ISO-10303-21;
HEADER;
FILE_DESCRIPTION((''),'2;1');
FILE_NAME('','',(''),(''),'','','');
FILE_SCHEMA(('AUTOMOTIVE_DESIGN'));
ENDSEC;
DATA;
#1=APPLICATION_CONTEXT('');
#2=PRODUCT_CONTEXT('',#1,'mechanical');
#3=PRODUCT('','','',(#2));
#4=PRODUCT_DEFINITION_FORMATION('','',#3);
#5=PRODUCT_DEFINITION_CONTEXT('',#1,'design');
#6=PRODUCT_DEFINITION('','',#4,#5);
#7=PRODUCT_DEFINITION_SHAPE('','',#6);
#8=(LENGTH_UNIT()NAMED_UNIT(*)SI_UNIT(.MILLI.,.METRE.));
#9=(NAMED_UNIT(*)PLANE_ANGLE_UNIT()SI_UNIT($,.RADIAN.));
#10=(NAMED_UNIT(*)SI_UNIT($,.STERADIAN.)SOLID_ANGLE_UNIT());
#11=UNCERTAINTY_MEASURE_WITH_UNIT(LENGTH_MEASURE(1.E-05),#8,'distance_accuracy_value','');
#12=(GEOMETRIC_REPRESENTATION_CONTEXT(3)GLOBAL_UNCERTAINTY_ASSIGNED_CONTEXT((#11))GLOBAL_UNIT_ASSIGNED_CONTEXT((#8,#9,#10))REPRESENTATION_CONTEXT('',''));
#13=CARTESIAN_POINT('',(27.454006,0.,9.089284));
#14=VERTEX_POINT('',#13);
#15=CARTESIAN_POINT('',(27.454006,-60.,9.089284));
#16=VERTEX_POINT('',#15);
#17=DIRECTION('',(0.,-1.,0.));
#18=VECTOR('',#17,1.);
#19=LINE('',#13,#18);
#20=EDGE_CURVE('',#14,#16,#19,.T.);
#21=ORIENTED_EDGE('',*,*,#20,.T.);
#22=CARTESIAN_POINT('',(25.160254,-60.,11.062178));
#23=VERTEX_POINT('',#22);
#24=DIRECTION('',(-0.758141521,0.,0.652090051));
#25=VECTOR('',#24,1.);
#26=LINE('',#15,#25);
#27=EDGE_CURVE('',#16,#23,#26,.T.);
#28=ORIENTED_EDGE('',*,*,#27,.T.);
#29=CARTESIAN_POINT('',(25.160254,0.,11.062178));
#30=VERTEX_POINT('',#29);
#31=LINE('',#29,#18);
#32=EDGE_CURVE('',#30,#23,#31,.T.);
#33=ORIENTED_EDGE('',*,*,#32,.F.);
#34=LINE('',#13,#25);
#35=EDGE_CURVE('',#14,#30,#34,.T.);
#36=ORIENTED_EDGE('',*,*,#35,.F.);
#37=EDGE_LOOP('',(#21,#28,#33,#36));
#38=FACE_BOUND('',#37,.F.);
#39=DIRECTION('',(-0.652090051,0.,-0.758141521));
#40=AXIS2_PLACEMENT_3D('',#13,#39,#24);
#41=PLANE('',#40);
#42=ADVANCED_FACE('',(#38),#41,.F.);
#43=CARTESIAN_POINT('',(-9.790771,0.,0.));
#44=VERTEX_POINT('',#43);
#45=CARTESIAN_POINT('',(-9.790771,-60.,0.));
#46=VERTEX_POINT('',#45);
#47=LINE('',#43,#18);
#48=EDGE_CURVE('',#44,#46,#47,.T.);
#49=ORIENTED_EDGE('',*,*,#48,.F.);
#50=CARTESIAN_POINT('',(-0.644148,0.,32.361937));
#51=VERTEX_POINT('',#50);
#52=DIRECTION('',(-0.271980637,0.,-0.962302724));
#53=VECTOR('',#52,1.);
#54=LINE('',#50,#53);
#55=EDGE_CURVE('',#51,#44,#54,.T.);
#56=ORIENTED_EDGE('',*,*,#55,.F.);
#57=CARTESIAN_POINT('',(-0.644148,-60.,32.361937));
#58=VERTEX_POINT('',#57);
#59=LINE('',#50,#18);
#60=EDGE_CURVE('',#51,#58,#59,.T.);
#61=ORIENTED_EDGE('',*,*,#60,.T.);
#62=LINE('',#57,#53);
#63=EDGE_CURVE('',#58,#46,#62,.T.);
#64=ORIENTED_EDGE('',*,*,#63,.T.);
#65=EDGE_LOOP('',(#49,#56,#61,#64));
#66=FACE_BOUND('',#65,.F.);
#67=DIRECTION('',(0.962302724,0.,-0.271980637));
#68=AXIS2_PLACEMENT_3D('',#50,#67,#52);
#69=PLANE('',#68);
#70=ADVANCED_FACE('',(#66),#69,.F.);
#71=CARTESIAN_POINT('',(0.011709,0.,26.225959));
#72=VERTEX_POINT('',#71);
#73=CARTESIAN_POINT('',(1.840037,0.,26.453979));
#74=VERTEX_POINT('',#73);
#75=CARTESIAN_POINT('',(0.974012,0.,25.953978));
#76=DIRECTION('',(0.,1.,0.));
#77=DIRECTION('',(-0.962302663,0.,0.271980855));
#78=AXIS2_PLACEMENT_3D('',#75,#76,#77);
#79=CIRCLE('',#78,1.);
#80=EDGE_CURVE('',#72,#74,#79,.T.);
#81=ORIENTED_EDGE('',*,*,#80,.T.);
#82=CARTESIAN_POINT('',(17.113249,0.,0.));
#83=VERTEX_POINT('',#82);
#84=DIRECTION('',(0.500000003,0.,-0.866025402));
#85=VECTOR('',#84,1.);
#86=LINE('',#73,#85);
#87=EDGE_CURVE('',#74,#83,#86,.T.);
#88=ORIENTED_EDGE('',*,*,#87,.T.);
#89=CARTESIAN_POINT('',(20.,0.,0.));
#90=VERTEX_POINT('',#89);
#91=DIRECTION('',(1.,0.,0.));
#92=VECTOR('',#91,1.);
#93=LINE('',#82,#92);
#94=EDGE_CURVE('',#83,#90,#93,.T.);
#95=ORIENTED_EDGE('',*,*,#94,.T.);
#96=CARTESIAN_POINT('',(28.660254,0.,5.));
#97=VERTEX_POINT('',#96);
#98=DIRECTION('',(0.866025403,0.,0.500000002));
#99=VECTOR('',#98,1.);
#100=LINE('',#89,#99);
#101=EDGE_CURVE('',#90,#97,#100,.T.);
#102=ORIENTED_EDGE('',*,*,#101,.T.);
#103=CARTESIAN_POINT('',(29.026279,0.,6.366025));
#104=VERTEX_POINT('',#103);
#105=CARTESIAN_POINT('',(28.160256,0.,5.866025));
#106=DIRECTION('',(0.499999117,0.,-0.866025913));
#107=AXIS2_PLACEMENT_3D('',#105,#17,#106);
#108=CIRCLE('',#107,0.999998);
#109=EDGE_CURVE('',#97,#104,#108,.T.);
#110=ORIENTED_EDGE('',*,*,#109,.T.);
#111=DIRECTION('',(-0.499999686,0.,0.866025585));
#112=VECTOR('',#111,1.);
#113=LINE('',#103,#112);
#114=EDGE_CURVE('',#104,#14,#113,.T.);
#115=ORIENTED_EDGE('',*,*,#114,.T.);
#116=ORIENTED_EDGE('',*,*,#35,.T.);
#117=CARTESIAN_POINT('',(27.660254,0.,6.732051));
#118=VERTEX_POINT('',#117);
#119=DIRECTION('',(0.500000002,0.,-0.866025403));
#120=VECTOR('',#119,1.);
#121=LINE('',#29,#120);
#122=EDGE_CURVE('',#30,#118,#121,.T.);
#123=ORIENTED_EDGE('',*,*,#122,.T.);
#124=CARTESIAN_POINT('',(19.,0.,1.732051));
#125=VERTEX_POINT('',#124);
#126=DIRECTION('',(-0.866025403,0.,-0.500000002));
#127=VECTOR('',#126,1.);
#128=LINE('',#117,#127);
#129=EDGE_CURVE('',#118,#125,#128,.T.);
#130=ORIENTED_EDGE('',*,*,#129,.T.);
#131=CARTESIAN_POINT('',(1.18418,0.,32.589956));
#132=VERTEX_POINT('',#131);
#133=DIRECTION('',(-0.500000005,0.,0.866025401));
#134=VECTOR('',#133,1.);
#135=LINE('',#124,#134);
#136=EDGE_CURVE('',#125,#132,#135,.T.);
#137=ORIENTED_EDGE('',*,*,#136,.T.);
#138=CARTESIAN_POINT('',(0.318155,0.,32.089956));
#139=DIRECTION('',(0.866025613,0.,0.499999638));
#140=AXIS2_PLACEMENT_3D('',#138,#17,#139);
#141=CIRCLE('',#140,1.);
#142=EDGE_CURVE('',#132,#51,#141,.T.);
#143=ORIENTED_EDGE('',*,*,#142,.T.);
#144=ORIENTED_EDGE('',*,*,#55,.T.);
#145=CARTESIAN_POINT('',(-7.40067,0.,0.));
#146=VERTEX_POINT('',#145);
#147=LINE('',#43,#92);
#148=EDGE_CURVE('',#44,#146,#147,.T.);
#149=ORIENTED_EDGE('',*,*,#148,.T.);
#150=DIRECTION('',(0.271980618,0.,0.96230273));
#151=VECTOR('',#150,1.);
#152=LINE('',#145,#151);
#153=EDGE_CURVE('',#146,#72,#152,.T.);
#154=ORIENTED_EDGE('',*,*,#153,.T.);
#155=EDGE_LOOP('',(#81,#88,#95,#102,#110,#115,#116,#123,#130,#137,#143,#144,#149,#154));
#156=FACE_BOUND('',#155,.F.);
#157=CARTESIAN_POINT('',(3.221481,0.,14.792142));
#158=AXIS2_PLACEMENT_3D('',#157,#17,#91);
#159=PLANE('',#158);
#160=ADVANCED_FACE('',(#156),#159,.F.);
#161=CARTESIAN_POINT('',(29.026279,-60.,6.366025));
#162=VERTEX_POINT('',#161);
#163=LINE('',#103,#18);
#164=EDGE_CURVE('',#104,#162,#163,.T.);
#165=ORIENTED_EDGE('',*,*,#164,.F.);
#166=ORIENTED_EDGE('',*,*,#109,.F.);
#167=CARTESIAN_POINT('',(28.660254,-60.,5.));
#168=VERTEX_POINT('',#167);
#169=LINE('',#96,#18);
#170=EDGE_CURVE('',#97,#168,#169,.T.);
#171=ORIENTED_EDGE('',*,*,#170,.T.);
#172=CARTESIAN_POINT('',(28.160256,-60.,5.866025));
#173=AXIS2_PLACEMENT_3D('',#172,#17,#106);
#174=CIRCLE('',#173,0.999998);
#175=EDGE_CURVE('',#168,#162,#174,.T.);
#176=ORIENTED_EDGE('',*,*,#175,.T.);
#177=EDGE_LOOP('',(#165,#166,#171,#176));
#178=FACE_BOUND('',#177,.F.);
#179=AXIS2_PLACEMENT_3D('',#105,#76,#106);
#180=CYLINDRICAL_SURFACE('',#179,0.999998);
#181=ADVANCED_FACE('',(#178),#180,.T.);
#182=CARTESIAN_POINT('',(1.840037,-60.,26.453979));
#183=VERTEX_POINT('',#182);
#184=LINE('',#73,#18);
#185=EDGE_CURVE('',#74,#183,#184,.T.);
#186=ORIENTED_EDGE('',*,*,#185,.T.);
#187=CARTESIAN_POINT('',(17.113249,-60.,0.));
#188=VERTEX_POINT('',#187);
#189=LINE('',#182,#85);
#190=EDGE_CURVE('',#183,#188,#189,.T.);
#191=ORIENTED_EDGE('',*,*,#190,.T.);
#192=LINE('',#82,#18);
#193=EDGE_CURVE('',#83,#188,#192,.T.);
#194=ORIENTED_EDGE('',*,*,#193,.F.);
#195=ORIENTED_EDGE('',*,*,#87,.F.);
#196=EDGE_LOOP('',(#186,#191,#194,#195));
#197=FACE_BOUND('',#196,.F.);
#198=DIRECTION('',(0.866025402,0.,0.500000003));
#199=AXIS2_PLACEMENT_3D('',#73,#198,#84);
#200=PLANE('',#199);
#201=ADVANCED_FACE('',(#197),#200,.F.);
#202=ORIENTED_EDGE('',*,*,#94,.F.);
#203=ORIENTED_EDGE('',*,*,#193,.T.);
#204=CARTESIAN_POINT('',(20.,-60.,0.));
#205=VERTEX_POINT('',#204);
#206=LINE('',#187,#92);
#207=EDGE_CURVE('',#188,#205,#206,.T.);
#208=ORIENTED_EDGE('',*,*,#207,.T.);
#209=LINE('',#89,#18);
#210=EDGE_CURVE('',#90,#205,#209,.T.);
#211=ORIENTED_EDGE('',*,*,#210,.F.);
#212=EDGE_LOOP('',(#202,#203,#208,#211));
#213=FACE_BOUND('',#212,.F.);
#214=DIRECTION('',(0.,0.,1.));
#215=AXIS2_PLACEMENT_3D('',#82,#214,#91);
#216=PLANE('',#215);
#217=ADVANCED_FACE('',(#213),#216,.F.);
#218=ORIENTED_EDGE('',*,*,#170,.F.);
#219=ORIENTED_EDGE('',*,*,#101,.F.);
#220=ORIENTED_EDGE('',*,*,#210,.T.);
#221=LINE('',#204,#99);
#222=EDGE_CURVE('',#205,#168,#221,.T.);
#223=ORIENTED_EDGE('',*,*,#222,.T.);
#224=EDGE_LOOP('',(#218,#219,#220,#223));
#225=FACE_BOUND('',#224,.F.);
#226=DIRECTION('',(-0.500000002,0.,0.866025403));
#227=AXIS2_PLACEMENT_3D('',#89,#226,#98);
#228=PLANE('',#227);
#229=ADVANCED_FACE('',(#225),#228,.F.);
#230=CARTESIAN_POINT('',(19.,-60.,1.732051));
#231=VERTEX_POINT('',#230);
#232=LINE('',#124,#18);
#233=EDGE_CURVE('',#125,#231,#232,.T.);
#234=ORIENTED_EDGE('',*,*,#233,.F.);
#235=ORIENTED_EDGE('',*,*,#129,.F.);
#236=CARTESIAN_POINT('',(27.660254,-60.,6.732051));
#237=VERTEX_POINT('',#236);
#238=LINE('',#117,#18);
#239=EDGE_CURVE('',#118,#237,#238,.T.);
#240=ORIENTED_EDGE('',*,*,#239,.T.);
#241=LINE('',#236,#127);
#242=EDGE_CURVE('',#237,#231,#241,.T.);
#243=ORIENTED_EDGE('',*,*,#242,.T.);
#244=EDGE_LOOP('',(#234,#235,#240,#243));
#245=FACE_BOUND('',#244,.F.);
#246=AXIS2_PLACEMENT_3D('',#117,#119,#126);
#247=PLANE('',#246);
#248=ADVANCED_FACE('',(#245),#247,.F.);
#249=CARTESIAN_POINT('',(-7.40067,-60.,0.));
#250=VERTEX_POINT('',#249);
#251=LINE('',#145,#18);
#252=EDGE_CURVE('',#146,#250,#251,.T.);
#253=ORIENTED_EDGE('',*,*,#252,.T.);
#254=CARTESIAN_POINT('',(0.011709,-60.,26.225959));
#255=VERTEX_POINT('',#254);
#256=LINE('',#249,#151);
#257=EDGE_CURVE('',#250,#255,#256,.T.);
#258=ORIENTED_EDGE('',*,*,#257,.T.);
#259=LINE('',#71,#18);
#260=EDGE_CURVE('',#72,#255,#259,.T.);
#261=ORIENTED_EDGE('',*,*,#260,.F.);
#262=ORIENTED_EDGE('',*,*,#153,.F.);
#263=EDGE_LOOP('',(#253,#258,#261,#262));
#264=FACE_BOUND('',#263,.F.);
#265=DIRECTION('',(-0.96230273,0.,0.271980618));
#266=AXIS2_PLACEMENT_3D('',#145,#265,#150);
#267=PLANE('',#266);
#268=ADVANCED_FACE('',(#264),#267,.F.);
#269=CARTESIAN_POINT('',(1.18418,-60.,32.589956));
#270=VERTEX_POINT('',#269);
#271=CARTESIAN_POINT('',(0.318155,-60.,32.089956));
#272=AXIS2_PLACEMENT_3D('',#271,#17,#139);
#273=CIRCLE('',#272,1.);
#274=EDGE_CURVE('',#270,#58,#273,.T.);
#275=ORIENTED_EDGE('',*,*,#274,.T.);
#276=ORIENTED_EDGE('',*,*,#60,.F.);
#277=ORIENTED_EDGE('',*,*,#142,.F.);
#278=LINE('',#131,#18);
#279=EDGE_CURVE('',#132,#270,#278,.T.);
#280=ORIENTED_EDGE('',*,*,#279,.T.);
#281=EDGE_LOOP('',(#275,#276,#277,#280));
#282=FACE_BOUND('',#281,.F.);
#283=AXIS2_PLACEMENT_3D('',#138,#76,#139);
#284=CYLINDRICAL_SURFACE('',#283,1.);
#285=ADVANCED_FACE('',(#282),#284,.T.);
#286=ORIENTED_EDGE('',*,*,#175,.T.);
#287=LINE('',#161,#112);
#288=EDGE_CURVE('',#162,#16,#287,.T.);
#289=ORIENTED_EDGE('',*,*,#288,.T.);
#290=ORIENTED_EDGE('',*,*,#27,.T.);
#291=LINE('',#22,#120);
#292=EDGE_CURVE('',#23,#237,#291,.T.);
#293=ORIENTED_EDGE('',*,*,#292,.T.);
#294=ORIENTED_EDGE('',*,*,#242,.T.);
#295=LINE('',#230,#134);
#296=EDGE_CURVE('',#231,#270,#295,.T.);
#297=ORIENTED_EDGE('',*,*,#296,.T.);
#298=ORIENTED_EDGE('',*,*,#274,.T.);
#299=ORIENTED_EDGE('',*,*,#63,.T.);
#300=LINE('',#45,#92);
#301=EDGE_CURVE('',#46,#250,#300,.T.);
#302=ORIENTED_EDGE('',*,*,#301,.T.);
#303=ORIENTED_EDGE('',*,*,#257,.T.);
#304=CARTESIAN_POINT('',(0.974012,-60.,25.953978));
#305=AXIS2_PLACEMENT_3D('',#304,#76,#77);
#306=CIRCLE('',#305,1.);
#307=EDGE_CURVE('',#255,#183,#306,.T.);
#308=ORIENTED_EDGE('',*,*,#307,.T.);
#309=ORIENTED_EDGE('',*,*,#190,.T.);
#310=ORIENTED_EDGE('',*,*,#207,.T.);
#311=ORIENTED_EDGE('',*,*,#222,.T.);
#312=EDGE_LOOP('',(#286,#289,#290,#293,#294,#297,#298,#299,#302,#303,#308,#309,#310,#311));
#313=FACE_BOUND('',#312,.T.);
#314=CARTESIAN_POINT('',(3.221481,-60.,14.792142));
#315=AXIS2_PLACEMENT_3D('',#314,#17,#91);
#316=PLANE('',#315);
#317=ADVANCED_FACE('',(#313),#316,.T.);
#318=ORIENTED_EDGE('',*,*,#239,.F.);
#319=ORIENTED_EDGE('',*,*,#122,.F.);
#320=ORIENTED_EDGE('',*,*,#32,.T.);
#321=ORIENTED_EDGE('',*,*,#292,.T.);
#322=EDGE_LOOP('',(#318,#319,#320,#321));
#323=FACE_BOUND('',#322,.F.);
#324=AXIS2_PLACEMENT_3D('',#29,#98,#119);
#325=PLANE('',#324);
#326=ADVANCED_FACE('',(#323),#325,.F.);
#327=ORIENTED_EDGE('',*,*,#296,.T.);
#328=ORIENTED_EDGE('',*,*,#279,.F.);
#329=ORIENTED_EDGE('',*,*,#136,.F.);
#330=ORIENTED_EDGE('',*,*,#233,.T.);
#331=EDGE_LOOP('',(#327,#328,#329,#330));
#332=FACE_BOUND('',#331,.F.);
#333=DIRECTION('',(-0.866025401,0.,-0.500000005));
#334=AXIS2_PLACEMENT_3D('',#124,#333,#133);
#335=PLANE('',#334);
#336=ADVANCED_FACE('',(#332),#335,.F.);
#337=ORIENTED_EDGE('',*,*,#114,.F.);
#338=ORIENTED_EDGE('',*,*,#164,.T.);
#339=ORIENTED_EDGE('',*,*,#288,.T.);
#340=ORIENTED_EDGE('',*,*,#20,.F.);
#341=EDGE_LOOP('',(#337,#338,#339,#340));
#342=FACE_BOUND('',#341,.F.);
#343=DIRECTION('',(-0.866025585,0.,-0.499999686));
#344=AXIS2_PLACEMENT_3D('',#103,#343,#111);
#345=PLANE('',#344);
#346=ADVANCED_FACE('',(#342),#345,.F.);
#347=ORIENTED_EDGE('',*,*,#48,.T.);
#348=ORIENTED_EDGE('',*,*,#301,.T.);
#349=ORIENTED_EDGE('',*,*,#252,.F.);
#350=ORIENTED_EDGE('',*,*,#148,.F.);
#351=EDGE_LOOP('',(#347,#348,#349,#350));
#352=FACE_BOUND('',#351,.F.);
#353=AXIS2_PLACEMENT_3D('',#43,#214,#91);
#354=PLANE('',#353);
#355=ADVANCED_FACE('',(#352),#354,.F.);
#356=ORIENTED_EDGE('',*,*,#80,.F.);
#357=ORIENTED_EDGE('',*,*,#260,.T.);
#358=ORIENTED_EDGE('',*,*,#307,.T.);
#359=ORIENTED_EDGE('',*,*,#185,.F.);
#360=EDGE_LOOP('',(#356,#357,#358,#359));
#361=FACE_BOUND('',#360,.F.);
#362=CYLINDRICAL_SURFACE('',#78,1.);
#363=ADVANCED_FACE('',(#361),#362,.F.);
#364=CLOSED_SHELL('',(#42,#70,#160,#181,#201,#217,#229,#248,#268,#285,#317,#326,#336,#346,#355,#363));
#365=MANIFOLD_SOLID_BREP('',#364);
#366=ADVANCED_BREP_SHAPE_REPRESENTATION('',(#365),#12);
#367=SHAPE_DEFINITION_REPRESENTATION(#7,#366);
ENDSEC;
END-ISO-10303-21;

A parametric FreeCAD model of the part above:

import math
import FreeCAD as App
import Part
import Sketcher
Q = App.Units.Quantity

doc = App.newDocument("Part")
body = doc.addObject("PartDesign::Body", "Body")

sketch1 = doc.addObject("Sketcher::SketchObject", "Sketch")
body.addObject(sketch1)
sketch1.AttachmentSupport = (doc.XZ_Plane, [""])
sketch1.MapMode = "FlatFace"
sketch1.addGeometry([
    Part.LineSegment(App.Vector(19, 1.732051, 0), App.Vector(1.18418, 32.589956, 0)),
    Part.ArcOfCircle(Part.Circle(App.Vector(0.318155, 32.089956, 0), App.Vector(0, 0, 1), 1), math.radians(29.999976), math.radians(164.217842)),
    Part.LineSegment(App.Vector(-0.644148, 32.361937, 0), App.Vector(-9.790771, 0, 0)),
    Part.LineSegment(App.Vector(-9.790771, 0, 0), App.Vector(-7.40067, 0, 0)),
    Part.LineSegment(App.Vector(-7.40067, 0, 0), App.Vector(0.011709, 26.225959, 0)),
    Part.ArcOfCircle(Part.Circle(App.Vector(0.974012, 25.953978, 0), App.Vector(0, 0, 1), 1), math.radians(30.000053), math.radians(164.217827)),
    Part.LineSegment(App.Vector(1.840037, 26.453979, 0), App.Vector(17.113249, 0, 0)),
    Part.LineSegment(App.Vector(17.113249, 0, 0), App.Vector(20, 0, 0)),
    Part.LineSegment(App.Vector(20, 0, 0), App.Vector(28.660254, 5, 0)),
    Part.ArcOfCircle(Part.Circle(App.Vector(28.160256, 5.866025, 0), App.Vector(0, 0, 1), 0.999998), math.radians(-60.000058), math.radians(30.000082)),
    Part.LineSegment(App.Vector(29.026279, 6.366025, 0), App.Vector(27.454006, 9.089284, 0)),
    Part.LineSegment(App.Vector(27.454006, 9.089284, 0), App.Vector(25.160254, 11.062178, 0)),
    Part.LineSegment(App.Vector(25.160254, 11.062178, 0), App.Vector(27.660254, 6.732051, 0)),
    Part.LineSegment(App.Vector(27.660254, 6.732051, 0), App.Vector(19, 1.732051, 0)),
], False)
sketch1.addConstraint([
    Sketcher.Constraint("Coincident", 0, 2, 1, 1),
    Sketcher.Constraint("Coincident", 1, 2, 2, 1),
    Sketcher.Constraint("Coincident", 2, 2, 3, 1),
    Sketcher.Constraint("Coincident", 3, 2, 4, 1),
    Sketcher.Constraint("Coincident", 4, 2, 5, 2),
    Sketcher.Constraint("Coincident", 5, 1, 6, 1),
    Sketcher.Constraint("Coincident", 6, 2, 7, 1),
    Sketcher.Constraint("Coincident", 7, 2, 8, 1),
    Sketcher.Constraint("Coincident", 8, 2, 9, 1),
    Sketcher.Constraint("Coincident", 9, 2, 10, 1),
    Sketcher.Constraint("Coincident", 10, 2, 11, 1),
    Sketcher.Constraint("Coincident", 11, 2, 12, 1),
    Sketcher.Constraint("Coincident", 12, 2, 13, 1),
    Sketcher.Constraint("Coincident", 13, 2, 0, 1),
    Sketcher.Constraint("Horizontal", 3),
    Sketcher.Constraint("Horizontal", 7),
    Sketcher.Constraint("PointOnObject", 2, 2, -1),
    Sketcher.Constraint("PointOnObject", 6, 2, -1),
    Sketcher.Constraint("Radius", 1, Q("1 mm")),
    Sketcher.Constraint("Radius", 5, Q("1 mm")),
    Sketcher.Constraint("Radius", 9, Q("0.999998 mm")),
    Sketcher.Constraint("Distance", 8, Q("10 mm")),
    Sketcher.Constraint("Distance", 12, Q("5 mm")),
    Sketcher.Constraint("Distance", 13, Q("10 mm")),
    Sketcher.Constraint("DistanceX", -1, 1, 7, 2, Q("20 mm")),
    Sketcher.Constraint("DistanceY", -1, 1, 8, 2, Q("5 mm")),
    Sketcher.Constraint("DistanceX", -1, 1, 13, 2, Q("19 mm")),
    Sketcher.Constraint("DistanceX", 11, 2, 9, 3, Q("3.000002 mm")),
    Sketcher.Constraint("DistanceX", 12, 2, 8, 2, Q("1 mm")),
    Sketcher.Constraint("DistanceY", 1, 3, 0, 2, Q("0.5 mm")),
    Sketcher.Constraint("DistanceY", 5, 3, 5, 1, Q("0.500001 mm")),
    Sketcher.Constraint("DistanceX", 9, 3, 8, 2, Q("0.499998 mm")),
    Sketcher.Constraint("DistanceY", 9, 3, 9, 2, Q("0.5 mm")),
    Sketcher.Constraint("DistanceX", 3, 1, 3, 2, Q("2.390101 mm")),
    Sketcher.Constraint("DistanceX", 7, 1, 7, 2, Q("2.886751 mm")),
    Sketcher.Constraint("DistanceX", 1, 3, 9, 3, Q("27.842101 mm")),
    Sketcher.Constraint("Distance", 0, Q("35.63164 mm")),
    Sketcher.Constraint("DistanceX", -1, 1, 5, 3, Q("0.974012 mm")),
    Sketcher.Constraint("DistanceY", -1, 1, 5, 3, Q("25.953978 mm")),
    Sketcher.Constraint("DistanceX", 1, 2, -1, 1, Q("0.644148 mm")),
    Sketcher.Constraint("DistanceX", 2, 2, -1, 1, Q("9.790771 mm")),
    Sketcher.Constraint("DistanceX", -1, 1, 4, 2, Q("0.011709 mm")),
    Sketcher.Constraint("DistanceY", -1, 1, 12, 2, Q("6.732051 mm")),
    Sketcher.Constraint("DistanceY", 9, 2, 10, 2, Q("2.723259 mm")),
    Sketcher.Constraint("DistanceX", 10, 2, 9, 3, Q("0.70625 mm")),
])
pad1 = doc.addObject("PartDesign::Pad", "Pad")
body.addObject(pad1)
pad1.Profile = sketch1
pad1.Length = 60

doc.recompute()
